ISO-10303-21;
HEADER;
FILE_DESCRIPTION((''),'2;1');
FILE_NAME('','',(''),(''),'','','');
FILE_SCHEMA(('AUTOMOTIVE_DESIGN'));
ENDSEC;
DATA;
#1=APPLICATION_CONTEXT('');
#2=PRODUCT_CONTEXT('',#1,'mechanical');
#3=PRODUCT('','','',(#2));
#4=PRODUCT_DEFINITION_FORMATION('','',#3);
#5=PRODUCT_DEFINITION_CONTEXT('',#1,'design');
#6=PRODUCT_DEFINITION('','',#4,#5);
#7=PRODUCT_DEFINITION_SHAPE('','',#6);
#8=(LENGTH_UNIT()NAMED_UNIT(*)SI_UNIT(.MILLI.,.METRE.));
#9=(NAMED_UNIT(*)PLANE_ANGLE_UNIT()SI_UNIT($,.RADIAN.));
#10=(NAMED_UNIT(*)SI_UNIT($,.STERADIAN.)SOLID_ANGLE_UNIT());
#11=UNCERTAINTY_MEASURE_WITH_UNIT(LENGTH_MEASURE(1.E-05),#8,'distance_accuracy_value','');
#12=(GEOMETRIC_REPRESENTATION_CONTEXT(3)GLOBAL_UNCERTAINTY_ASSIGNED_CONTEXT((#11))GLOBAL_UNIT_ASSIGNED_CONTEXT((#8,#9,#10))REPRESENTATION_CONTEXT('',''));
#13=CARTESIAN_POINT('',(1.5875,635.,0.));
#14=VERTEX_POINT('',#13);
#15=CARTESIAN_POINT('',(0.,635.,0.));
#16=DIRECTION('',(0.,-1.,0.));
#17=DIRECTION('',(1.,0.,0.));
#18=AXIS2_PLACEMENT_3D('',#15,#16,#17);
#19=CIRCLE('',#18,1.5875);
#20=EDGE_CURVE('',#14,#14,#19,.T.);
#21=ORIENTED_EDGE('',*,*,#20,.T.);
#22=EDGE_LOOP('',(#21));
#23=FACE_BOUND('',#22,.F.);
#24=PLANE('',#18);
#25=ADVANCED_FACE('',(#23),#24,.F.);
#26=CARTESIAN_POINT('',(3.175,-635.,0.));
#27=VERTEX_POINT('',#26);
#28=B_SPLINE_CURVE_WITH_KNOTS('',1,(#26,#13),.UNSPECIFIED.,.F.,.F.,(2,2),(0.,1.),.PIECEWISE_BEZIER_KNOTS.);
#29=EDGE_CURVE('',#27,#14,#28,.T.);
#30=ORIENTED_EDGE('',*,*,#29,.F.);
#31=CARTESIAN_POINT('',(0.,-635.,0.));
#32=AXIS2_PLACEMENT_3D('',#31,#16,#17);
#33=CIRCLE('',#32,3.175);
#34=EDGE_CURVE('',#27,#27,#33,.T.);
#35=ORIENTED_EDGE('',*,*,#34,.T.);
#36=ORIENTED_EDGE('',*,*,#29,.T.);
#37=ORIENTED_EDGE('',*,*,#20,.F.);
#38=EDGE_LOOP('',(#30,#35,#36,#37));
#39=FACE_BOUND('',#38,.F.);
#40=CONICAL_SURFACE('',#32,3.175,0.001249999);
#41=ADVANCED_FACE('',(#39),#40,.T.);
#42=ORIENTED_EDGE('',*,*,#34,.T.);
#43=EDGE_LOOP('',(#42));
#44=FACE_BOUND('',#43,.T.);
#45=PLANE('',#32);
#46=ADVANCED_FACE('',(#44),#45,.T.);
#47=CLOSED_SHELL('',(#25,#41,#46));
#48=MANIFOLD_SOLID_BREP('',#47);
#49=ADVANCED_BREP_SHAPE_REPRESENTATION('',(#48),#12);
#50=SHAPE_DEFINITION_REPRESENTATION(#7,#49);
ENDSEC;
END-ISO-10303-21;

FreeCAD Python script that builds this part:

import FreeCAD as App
import Part
import Sketcher
from FreeCAD import Vector
Q = App.Units.Quantity

doc = App.newDocument("Part")
body = doc.addObject("PartDesign::Body", "Body")

sketch1 = body.newObject("Sketcher::SketchObject", "Sketch")
sketch1.AttachmentSupport = (doc.getObject("XZ_Plane"), [""])
sketch1.MapMode = "FlatFace"
sketch1.AttachmentOffset = App.Placement(Vector(0, 0, 25 * 25.4), App.Rotation())
sketch1.addGeometry(Part.Circle(Vector(0, 0, 0), Vector(0, 0, 1), 3.2), False)
sketch1.addConstraint([
    Sketcher.Constraint("Coincident", 0, 3, -1, 1),
    Sketcher.Constraint("Diameter", 0, Q("0.25 in")),
])

sketch2 = body.newObject("Sketcher::SketchObject", "Sketch001")
sketch2.AttachmentSupport = (doc.getObject("XZ_Plane"), [""])
sketch2.MapMode = "FlatFace"
sketch2.AttachmentOffset = App.Placement(Vector(0, 0, -25 * 25.4), App.Rotation())
sketch2.addGeometry(Part.Circle(Vector(0, 0, 0), Vector(0, 0, 1), 1.6), False)
sketch2.addConstraint([
    Sketcher.Constraint("Coincident", 0, 3, -1, 1),
    Sketcher.Constraint("Diameter", 0, Q("0.125 in")),
])

additiveloft = body.newObject("PartDesign::AdditiveLoft", "AdditiveLoft")
additiveloft.Profile = sketch1
additiveloft.Sections = [sketch2]

doc.recompute()
